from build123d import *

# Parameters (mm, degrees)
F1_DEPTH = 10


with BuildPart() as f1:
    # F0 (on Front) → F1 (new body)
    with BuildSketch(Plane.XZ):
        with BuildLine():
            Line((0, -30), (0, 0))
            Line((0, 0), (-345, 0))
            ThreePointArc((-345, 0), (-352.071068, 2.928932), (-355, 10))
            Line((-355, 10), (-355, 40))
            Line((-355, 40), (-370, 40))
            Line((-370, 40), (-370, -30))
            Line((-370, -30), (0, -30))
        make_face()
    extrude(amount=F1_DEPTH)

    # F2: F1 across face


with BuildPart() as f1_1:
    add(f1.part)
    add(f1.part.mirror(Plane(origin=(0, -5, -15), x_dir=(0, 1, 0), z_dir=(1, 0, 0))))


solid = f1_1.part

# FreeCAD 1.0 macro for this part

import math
import FreeCAD as App
import Part
import Sketcher
Q = App.Units.Quantity

doc = App.newDocument("Part")
params = doc.addObject("Spreadsheet::Sheet", "Params")
for row, (alias, value) in enumerate([
    ("sketch1_radius", "9.999999 mm"),
    ("sketch1_width", "345 mm"),
    ("sketch1_width2", "15 mm"),
    ("sketch1_height", "30 mm"),
    ("pad1_length", "10 mm"),
], start=1):
    params.set(f"A{row}", alias)
    params.set(f"B{row}", "=" + value)
    params.setAlias(f"B{row}", alias)

body = doc.addObject("PartDesign::Body", "Body")

# Sketch on XZ plane
sketch1 = body.newObject("Sketcher::SketchObject", "Sketch")
sketch1.AttachmentSupport = (doc.getObject("XZ_Plane"), [""])
sketch1.MapMode = "FlatFace"
sketch1.addGeometry([
    Part.LineSegment(App.Vector(0, -30, 0), App.Vector(0, 0, 0)),  # 0
    Part.LineSegment(App.Vector(0, 0, 0), App.Vector(-345, 0, 0)),  # 1
    Part.ArcOfCircle(Part.Circle(App.Vector(-345, 10, 0), App.Vector(0, 0, 1), 10), math.radians(180), math.radians(270)),  # 2
    Part.LineSegment(App.Vector(-355, 10, 0), App.Vector(-355, 40, 0)),  # 3
    Part.LineSegment(App.Vector(-355, 40, 0), App.Vector(-370, 40, 0)),  # 4
    Part.LineSegment(App.Vector(-370, 40, 0), App.Vector(-370, -30, 0)),  # 5
    Part.LineSegment(App.Vector(-370, -30, 0), App.Vector(0, -30, 0)),  # 6
], False)
sketch1.addConstraint([
    Sketcher.Constraint("Coincident", 0, 2, 1, 1),
    Sketcher.Constraint("Tangent", 1, 2, 2, 2),
    Sketcher.Constraint("Tangent", 2, 1, 3, 1),
    Sketcher.Constraint("Coincident", 3, 2, 4, 1),
    Sketcher.Constraint("Coincident", 4, 2, 5, 1),
    Sketcher.Constraint("Coincident", 5, 2, 6, 1),
    Sketcher.Constraint("Coincident", 6, 2, 0, 1),
    Sketcher.Constraint("Vertical", 0),
    Sketcher.Constraint("Horizontal", 1),
    Sketcher.Constraint("Vertical", 3),
    Sketcher.Constraint("Horizontal", 4),
    Sketcher.Constraint("Vertical", 5),
    Sketcher.Constraint("Horizontal", 6),
    Sketcher.Constraint("Coincident", 0, 2, -1, 1),
    Sketcher.Constraint("Equal", 0, 3),
    Sketcher.Constraint("Radius", 2, Q("9.999999 mm")),
    Sketcher.Constraint("DistanceX", 1, 2, 1, 1, Q("345 mm")),
    Sketcher.Constraint("DistanceX", 4, 2, 4, 1, Q("15 mm")),
    Sketcher.Constraint("DistanceY", 0, 1, 0, 2, Q("30 mm")),
])
sketch1.setExpression("Constraints[15]", "Params.sketch1_radius")
sketch1.setExpression("Constraints[16]", "Params.sketch1_width")
sketch1.setExpression("Constraints[17]", "Params.sketch1_width2")
sketch1.setExpression("Constraints[18]", "Params.sketch1_height")
pad1 = body.newObject("PartDesign::Pad", "Pad")
pad1.Profile = sketch1
pad1.setExpression("Length", "Params.pad1_length")
body2 = doc.addObject("PartDesign::Body", "Body001")
doc.recompute()

body2.BaseFeature = body
doc.recompute()

mirroring = doc.addObject("Part::Mirroring", "Mirroring")
mirroring.Source = body
mirroring.Base = App.Vector(0, -5, -15)
mirroring.Normal = App.Vector(1, 0, 0)
body3 = doc.addObject("PartDesign::Body", "Body002")
body3.BaseFeature = mirroring
boolean = body2.newObject("PartDesign::Boolean", "Boolean")
boolean.Type = "Fuse"
boolean.addObjects([body3])
doc.recompute()
mirroring.Visibility = False

doc.recompute()
